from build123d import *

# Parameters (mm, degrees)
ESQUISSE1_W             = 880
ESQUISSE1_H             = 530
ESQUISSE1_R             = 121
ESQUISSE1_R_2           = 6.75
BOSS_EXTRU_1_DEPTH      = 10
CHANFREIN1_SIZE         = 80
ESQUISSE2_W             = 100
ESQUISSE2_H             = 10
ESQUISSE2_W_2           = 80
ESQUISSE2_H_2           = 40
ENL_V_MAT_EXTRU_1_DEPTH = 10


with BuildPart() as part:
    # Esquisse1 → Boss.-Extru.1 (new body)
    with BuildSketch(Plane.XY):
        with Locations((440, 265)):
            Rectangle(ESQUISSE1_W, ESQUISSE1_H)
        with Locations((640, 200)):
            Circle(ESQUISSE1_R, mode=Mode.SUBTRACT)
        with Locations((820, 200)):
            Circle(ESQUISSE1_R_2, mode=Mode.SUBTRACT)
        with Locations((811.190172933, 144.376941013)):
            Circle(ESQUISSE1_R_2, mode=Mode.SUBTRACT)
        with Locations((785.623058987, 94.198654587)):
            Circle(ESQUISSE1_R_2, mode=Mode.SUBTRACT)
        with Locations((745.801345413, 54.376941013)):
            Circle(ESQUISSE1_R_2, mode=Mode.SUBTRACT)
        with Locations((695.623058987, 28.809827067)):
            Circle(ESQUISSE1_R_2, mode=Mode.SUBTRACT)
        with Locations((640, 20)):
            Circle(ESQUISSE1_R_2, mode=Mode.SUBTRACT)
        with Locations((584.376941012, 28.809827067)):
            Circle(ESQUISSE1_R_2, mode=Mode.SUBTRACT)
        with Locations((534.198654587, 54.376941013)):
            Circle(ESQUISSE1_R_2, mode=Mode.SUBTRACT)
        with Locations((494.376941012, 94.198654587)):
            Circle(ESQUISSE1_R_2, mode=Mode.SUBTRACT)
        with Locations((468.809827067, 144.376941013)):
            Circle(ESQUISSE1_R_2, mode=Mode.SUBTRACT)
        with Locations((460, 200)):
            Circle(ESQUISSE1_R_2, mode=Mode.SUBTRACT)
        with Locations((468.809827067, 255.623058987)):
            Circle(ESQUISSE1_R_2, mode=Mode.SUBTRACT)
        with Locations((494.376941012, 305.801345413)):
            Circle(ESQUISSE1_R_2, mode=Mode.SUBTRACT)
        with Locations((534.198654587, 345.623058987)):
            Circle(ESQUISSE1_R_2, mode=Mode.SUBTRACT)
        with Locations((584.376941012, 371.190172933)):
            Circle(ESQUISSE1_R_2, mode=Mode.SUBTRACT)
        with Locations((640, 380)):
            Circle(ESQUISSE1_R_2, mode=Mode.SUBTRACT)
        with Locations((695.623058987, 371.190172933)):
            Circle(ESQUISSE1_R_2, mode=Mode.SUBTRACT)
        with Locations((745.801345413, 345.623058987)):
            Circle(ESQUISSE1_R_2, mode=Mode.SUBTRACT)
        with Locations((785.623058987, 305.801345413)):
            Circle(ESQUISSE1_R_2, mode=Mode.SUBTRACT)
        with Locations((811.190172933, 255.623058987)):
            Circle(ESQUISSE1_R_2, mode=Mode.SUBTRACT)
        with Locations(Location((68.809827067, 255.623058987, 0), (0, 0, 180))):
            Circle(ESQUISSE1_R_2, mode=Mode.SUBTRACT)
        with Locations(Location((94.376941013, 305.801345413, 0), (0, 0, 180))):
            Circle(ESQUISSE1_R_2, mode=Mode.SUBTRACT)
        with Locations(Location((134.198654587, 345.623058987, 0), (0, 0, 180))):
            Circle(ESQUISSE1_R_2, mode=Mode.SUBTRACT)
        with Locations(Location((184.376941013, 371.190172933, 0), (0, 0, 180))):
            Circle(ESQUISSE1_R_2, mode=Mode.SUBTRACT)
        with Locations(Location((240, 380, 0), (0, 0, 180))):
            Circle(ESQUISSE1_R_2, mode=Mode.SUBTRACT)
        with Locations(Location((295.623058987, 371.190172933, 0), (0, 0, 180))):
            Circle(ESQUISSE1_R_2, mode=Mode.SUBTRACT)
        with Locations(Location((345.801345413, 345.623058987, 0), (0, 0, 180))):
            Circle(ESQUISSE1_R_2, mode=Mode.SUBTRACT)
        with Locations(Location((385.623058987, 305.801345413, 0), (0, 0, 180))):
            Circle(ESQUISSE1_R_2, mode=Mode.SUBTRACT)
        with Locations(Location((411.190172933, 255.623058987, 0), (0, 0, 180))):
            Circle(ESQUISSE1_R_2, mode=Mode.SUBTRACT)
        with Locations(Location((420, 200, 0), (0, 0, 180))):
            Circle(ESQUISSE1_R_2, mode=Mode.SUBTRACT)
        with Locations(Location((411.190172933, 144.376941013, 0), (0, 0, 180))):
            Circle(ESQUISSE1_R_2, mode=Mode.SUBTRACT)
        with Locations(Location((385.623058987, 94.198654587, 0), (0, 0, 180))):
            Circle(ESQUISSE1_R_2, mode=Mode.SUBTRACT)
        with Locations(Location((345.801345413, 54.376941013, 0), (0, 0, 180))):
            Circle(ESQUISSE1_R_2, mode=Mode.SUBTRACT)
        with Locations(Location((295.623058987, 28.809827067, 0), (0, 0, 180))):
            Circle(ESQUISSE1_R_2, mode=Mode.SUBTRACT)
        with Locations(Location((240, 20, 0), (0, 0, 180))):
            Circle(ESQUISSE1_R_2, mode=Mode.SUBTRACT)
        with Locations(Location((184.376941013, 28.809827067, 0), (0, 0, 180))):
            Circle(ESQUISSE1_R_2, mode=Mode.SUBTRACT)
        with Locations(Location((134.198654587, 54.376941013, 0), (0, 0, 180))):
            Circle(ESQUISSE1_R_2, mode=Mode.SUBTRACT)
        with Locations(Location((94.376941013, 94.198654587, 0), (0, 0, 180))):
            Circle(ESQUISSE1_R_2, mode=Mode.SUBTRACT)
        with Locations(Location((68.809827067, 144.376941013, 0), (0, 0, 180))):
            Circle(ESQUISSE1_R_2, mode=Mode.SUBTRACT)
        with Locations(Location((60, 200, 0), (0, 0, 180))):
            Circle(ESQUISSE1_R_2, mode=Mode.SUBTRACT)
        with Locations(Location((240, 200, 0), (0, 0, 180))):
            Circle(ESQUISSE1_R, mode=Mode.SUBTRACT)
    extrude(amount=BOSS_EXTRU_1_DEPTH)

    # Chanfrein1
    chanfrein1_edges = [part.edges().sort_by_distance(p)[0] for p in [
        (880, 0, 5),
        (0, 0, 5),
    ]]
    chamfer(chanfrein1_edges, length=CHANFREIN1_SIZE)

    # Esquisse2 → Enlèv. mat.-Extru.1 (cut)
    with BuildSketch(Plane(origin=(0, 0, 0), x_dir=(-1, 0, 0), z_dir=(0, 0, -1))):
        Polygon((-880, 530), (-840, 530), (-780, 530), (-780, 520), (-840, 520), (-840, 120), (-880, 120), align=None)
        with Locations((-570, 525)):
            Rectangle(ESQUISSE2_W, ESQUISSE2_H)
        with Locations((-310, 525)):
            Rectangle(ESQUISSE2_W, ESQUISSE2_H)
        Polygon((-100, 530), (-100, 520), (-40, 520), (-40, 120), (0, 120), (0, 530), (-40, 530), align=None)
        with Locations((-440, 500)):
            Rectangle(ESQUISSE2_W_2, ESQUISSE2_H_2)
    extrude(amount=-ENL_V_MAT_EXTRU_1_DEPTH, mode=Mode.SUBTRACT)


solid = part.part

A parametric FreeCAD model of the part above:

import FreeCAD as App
import Part
import Sketcher

V = App.Vector


def edges_at(feature, points):
    """Names of the edges that pass closest to the given points."""
    edges = feature.Shape.Edges
    near = lambda p: min(range(len(edges)), key=lambda i: edges[i].distToShape(Part.Vertex(*p))[0])
    return sorted({f"Edge{near(p) + 1}" for p in points})

doc = App.newDocument("Part")
body = doc.addObject("PartDesign::Body", "Body")

sketch1 = body.newObject("Sketcher::SketchObject", "Sketch")
sketch1.AttachmentSupport = (doc.getObject("XY_Plane"), [""])
sketch1.MapMode = "FlatFace"
sketch1.addGeometry(Part.LineSegment(V(0, 530, 0), V(0, 0, 0)), False)
sketch1.addGeometry(Part.LineSegment(V(0, 0, 0), V(880, 0, 0)), False)
sketch1.addGeometry(Part.LineSegment(V(880, 0, 0), V(880, 530, 0)), False)
sketch1.addGeometry(Part.LineSegment(V(880, 530, 0), V(0, 530, 0)), False)
sketch1.addGeometry(Part.Circle(V(134, 54, 0), V(0, 0, 1), 7), False)
sketch1.addGeometry(Part.Circle(V(184, 29, 0), V(0, 0, 1), 7), False)
sketch1.addGeometry(Part.Circle(V(240, 20, 0), V(0, 0, 1), 7), False)
sketch1.addGeometry(Part.Circle(V(94, 94, 0), V(0, 0, 1), 7), False)
sketch1.addGeometry(Part.Circle(V(296, 29, 0), V(0, 0, 1), 7), False)
sketch1.addGeometry(Part.Circle(V(346, 54, 0), V(0, 0, 1), 7), False)
sketch1.addGeometry(Part.Circle(V(386, 94, 0), V(0, 0, 1), 7), False)
sketch1.addGeometry(Part.Circle(V(69, 144, 0), V(0, 0, 1), 7), False)
sketch1.addGeometry(Part.Circle(V(411, 144, 0), V(0, 0, 1), 7), False)
sketch1.addGeometry(Part.Circle(V(534, 54, 0), V(0, 0, 1), 7), False)
sketch1.addGeometry(Part.Circle(V(584, 29, 0), V(0, 0, 1), 7), False)
sketch1.addGeometry(Part.Circle(V(494, 94, 0), V(0, 0, 1), 7), False)
sketch1.addGeometry(Part.Circle(V(640, 20, 0), V(0, 0, 1), 7), False)
sketch1.addGeometry(Part.Circle(V(696, 29, 0), V(0, 0, 1), 7), False)
sketch1.addGeometry(Part.Circle(V(746, 54, 0), V(0, 0, 1), 7), False)
sketch1.addGeometry(Part.Circle(V(786, 94, 0), V(0, 0, 1), 7), False)
sketch1.addGeometry(Part.Circle(V(469, 144, 0), V(0, 0, 1), 7), False)
sketch1.addGeometry(Part.Circle(V(811, 144, 0), V(0, 0, 1), 7), False)
sketch1.addGeometry(Part.Circle(V(60, 200, 0), V(0, 0, 1), 7), False)
sketch1.addGeometry(Part.Circle(V(240, 200, 0), V(0, 0, 1), 121), False)
sketch1.addGeometry(Part.Circle(V(69, 256, 0), V(0, 0, 1), 7), False)
sketch1.addGeometry(Part.Circle(V(420, 200, 0), V(0, 0, 1), 7), False)
sketch1.addGeometry(Part.Circle(V(411, 256, 0), V(0, 0, 1), 7), False)
sketch1.addGeometry(Part.Circle(V(94, 306, 0), V(0, 0, 1), 7), False)
sketch1.addGeometry(Part.Circle(V(134, 346, 0), V(0, 0, 1), 7), False)
sketch1.addGeometry(Part.Circle(V(184, 371, 0), V(0, 0, 1), 7), False)
sketch1.addGeometry(Part.Circle(V(240, 380, 0), V(0, 0, 1), 7), False)
sketch1.addGeometry(Part.Circle(V(386, 306, 0), V(0, 0, 1), 7), False)
sketch1.addGeometry(Part.Circle(V(296, 371, 0), V(0, 0, 1), 7), False)
sketch1.addGeometry(Part.Circle(V(346, 346, 0), V(0, 0, 1), 7), False)
sketch1.addGeometry(Part.Circle(V(460, 200, 0), V(0, 0, 1), 7), False)
sketch1.addGeometry(Part.Circle(V(469, 256, 0), V(0, 0, 1), 7), False)
sketch1.addGeometry(Part.Circle(V(640, 200, 0), V(0, 0, 1), 121), False)
sketch1.addGeometry(Part.Circle(V(820, 200, 0), V(0, 0, 1), 7), False)
sketch1.addGeometry(Part.Circle(V(811, 256, 0), V(0, 0, 1), 7), False)
sketch1.addGeometry(Part.Circle(V(494, 306, 0), V(0, 0, 1), 7), False)
sketch1.addGeometry(Part.Circle(V(534, 346, 0), V(0, 0, 1), 7), False)
sketch1.addGeometry(Part.Circle(V(584, 371, 0), V(0, 0, 1), 7), False)
sketch1.addGeometry(Part.Circle(V(786, 306, 0), V(0, 0, 1), 7), False)
sketch1.addGeometry(Part.Circle(V(640, 380, 0), V(0, 0, 1), 7), False)
sketch1.addGeometry(Part.Circle(V(696, 371, 0), V(0, 0, 1), 7), False)
sketch1.addGeometry(Part.Circle(V(746, 346, 0), V(0, 0, 1), 7), False)
sketch1.addConstraint(Sketcher.Constraint("Coincident", 0, 2, 1, 1))
sketch1.addConstraint(Sketcher.Constraint("Coincident", 1, 2, 2, 1))
sketch1.addConstraint(Sketcher.Constraint("Coincident", 2, 2, 3, 1))
sketch1.addConstraint(Sketcher.Constraint("Coincident", 3, 2, 0, 1))
sketch1.addConstraint(Sketcher.Constraint("Vertical", 0))
sketch1.addConstraint(Sketcher.Constraint("Horizontal", 1))
sketch1.addConstraint(Sketcher.Constraint("Vertical", 2))
sketch1.addConstraint(Sketcher.Constraint("Horizontal", 3))
sketch1.addConstraint(Sketcher.Constraint("Coincident", 0, 2, -1, 1))
sketch1.addConstraint(Sketcher.Constraint("Equal", 4, 5))
sketch1.addConstraint(Sketcher.Constraint("Equal", 5, 6))
sketch1.addConstraint(Sketcher.Constraint("Equal", 6, 7))
sketch1.addConstraint(Sketcher.Constraint("Equal", 7, 8))
sketch1.addConstraint(Sketcher.Constraint("Equal", 8, 9))
sketch1.addConstraint(Sketcher.Constraint("Equal", 9, 10))
sketch1.addConstraint(Sketcher.Constraint("Equal", 10, 11))
sketch1.addConstraint(Sketcher.Constraint("Equal", 11, 12))
sketch1.addConstraint(Sketcher.Constraint("Equal", 12, 13))
sketch1.addConstraint(Sketcher.Constraint("Equal", 13, 14))
sketch1.addConstraint(Sketcher.Constraint("Equal", 14, 15))
sketch1.addConstraint(Sketcher.Constraint("Equal", 15, 16))
sketch1.addConstraint(Sketcher.Constraint("Equal", 16, 17))
sketch1.addConstraint(Sketcher.Constraint("Equal", 17, 18))
sketch1.addConstraint(Sketcher.Constraint("Equal", 18, 19))
sketch1.addConstraint(Sketcher.Constraint("Equal", 19, 20))
sketch1.addConstraint(Sketcher.Constraint("Equal", 20, 21))
sketch1.addConstraint(Sketcher.Constraint("Equal", 21, 22))
sketch1.addConstraint(Sketcher.Constraint("Equal", 22, 24))
sketch1.addConstraint(Sketcher.Constraint("Equal", 24, 25))
sketch1.addConstraint(Sketcher.Constraint("Equal", 25, 26))
sketch1.addConstraint(Sketcher.Constraint("Equal", 26, 27))
sketch1.addConstraint(Sketcher.Constraint("Equal", 27, 28))
sketch1.addConstraint(Sketcher.Constraint("Equal", 28, 29))
sketch1.addConstraint(Sketcher.Constraint("Equal", 29, 30))
sketch1.addConstraint(Sketcher.Constraint("Equal", 30, 31))
sketch1.addConstraint(Sketcher.Constraint("Equal", 31, 32))
sketch1.addConstraint(Sketcher.Constraint("Equal", 32, 33))
sketch1.addConstraint(Sketcher.Constraint("Equal", 33, 34))
sketch1.addConstraint(Sketcher.Constraint("Equal", 34, 35))
sketch1.addConstraint(Sketcher.Constraint("Equal", 23, 36))
sketch1.addConstraint(Sketcher.Constraint("Equal", 35, 37))
sketch1.addConstraint(Sketcher.Constraint("Equal", 37, 38))
sketch1.addConstraint(Sketcher.Constraint("Equal", 38, 39))
sketch1.addConstraint(Sketcher.Constraint("Equal", 39, 40))
sketch1.addConstraint(Sketcher.Constraint("Equal", 40, 41))
sketch1.addConstraint(Sketcher.Constraint("Equal", 41, 42))
sketch1.addConstraint(Sketcher.Constraint("Equal", 42, 43))
sketch1.addConstraint(Sketcher.Constraint("Equal", 43, 44))
sketch1.addConstraint(Sketcher.Constraint("Equal", 44, 45))
sketch1.addConstraint(Sketcher.Constraint("Horizontal", 5, 3, 8, 3))
sketch1.addConstraint(Sketcher.Constraint("Horizontal", 4, 3, 9, 3))
sketch1.addConstraint(Sketcher.Constraint("Horizontal", 7, 3, 10, 3))
sketch1.addConstraint(Sketcher.Constraint("Horizontal", 11, 3, 12, 3))
sketch1.addConstraint(Sketcher.Constraint("Horizontal", 9, 3, 13, 3))
sketch1.addConstraint(Sketcher.Constraint("Horizontal", 8, 3, 14, 3))
sketch1.addConstraint(Sketcher.Constraint("Horizontal", 10, 3, 15, 3))
sketch1.addConstraint(Sketcher.Constraint("Horizontal", 6, 3, 16, 3))
sketch1.addConstraint(Sketcher.Constraint("Horizontal", 14, 3, 17, 3))
sketch1.addConstraint(Sketcher.Constraint("Horizontal", 13, 3, 18, 3))
sketch1.addConstraint(Sketcher.Constraint("Horizontal", 15, 3, 19, 3))
sketch1.addConstraint(Sketcher.Constraint("Horizontal", 12, 3, 20, 3))
sketch1.addConstraint(Sketcher.Constraint("Horizontal", 20, 3, 21, 3))
sketch1.addConstraint(Sketcher.Constraint("Horizontal", 22, 3, 23, 3))
sketch1.addConstraint(Sketcher.Constraint("Horizontal", 23, 3, 25, 3))
sketch1.addConstraint(Sketcher.Constraint("Horizontal", 24, 3, 26, 3))
sketch1.addConstraint(Sketcher.Constraint("Horizontal", 27, 3, 31, 3))
sketch1.addConstraint(Sketcher.Constraint("Horizontal", 29, 3, 32, 3))
sketch1.addConstraint(Sketcher.Constraint("Horizontal", 28, 3, 33, 3))
sketch1.addConstraint(Sketcher.Constraint("Horizontal", 25, 3, 34, 3))
sketch1.addConstraint(Sketcher.Constraint("Horizontal", 26, 3, 35, 3))
sketch1.addConstraint(Sketcher.Constraint("Horizontal", 34, 3, 36, 3))
sketch1.addConstraint(Sketcher.Constraint("Horizontal", 36, 3, 37, 3))
sketch1.addConstraint(Sketcher.Constraint("Horizontal", 35, 3, 38, 3))
sketch1.addConstraint(Sketcher.Constraint("Horizontal", 31, 3, 39, 3))
sketch1.addConstraint(Sketcher.Constraint("Horizontal", 33, 3, 40, 3))
sketch1.addConstraint(Sketcher.Constraint("Horizontal", 32, 3, 41, 3))
sketch1.addConstraint(Sketcher.Constraint("Horizontal", 39, 3, 42, 3))
sketch1.addConstraint(Sketcher.Constraint("Horizontal", 30, 3, 43, 3))
sketch1.addConstraint(Sketcher.Constraint("Horizontal", 41, 3, 44, 3))
sketch1.addConstraint(Sketcher.Constraint("Horizontal", 40, 3, 45, 3))
sketch1.addConstraint(Sketcher.Constraint("Vertical", 6, 3, 23, 3))
sketch1.addConstraint(Sketcher.Constraint("Vertical", 11, 3, 24, 3))
sketch1.addConstraint(Sketcher.Constraint("Vertical", 12, 3, 26, 3))
sketch1.addConstraint(Sketcher.Constraint("Vertical", 7, 3, 27, 3))
sketch1.addConstraint(Sketcher.Constraint("Vertical", 4, 3, 28, 3))
sketch1.addConstraint(Sketcher.Constraint("Vertical", 5, 3, 29, 3))
sketch1.addConstraint(Sketcher.Constraint("Vertical", 23, 3, 30, 3))
sketch1.addConstraint(Sketcher.Constraint("Vertical", 10, 3, 31, 3))
sketch1.addConstraint(Sketcher.Constraint("Vertical", 8, 3, 32, 3))
sketch1.addConstraint(Sketcher.Constraint("Vertical", 9, 3, 33, 3))
sketch1.addConstraint(Sketcher.Constraint("Vertical", 20, 3, 35, 3))
sketch1.addConstraint(Sketcher.Constraint("Vertical", 16, 3, 36, 3))
sketch1.addConstraint(Sketcher.Constraint("Vertical", 21, 3, 38, 3))
sketch1.addConstraint(Sketcher.Constraint("Vertical", 15, 3, 39, 3))
sketch1.addConstraint(Sketcher.Constraint("Vertical", 13, 3, 40, 3))
sketch1.addConstraint(Sketcher.Constraint("Vertical", 14, 3, 41, 3))
sketch1.addConstraint(Sketcher.Constraint("Vertical", 19, 3, 42, 3))
sketch1.addConstraint(Sketcher.Constraint("Vertical", 36, 3, 43, 3))
sketch1.addConstraint(Sketcher.Constraint("Vertical", 17, 3, 44, 3))
sketch1.addConstraint(Sketcher.Constraint("Vertical", 18, 3, 45, 3))
sketch1.addConstraint(Sketcher.Constraint("Diameter", 23, 242.0))
sketch1.addConstraint(Sketcher.Constraint("Diameter", 4, 13.5))
sketch1.addConstraint(Sketcher.Constraint("DistanceX", 1, 1, 1, 2, 880.0))
sketch1.addConstraint(Sketcher.Constraint("DistanceY", 0, 2, 0, 1, 530.0))
sketch1.addConstraint(Sketcher.Constraint("DistanceX", -1, 1, 6, 3, 240.0))
sketch1.addConstraint(Sketcher.Constraint("DistanceY", -1, 1, 6, 3, 20.0))
sketch1.addConstraint(Sketcher.Constraint("DistanceX", -1, 1, 16, 3, 640.0))
sketch1.addConstraint(Sketcher.Constraint("DistanceX", -1, 1, 22, 3, 60.0))
sketch1.addConstraint(Sketcher.Constraint("DistanceY", -1, 1, 22, 3, 200.0))
sketch1.addConstraint(Sketcher.Constraint("DistanceX", -1, 1, 25, 3, 420.0))
sketch1.addConstraint(Sketcher.Constraint("DistanceY", -1, 1, 30, 3, 380.0))
sketch1.addConstraint(Sketcher.Constraint("DistanceX", -1, 1, 34, 3, 460.0))
sketch1.addConstraint(Sketcher.Constraint("DistanceX", -1, 1, 37, 3, 820.0))
sketch1.addConstraint(Sketcher.Constraint("DistanceX", 7, 3, 5, 3, 90.0))
sketch1.addConstraint(Sketcher.Constraint("DistanceX", 8, 3, 10, 3, 90.0))
sketch1.addConstraint(Sketcher.Constraint("DistanceY", 4, 3, 11, 3, 90.0))
sketch1.addConstraint(Sketcher.Constraint("DistanceX", 15, 3, 14, 3, 90.0))
sketch1.addConstraint(Sketcher.Constraint("DistanceX", 17, 3, 19, 3, 90.0))
sketch1.addConstraint(Sketcher.Constraint("DistanceY", 24, 3, 28, 3, 90.0))
sketch1.addConstraint(Sketcher.Constraint("DistanceY", -1, 1, 4, 3, 54.376941))
sketch1.addConstraint(Sketcher.Constraint("DistanceX", -1, 1, 5, 3, 184.376941))
sketch1.addConstraint(Sketcher.Constraint("DistanceX", -1, 1, 8, 3, 295.623059))
sketch1.addConstraint(Sketcher.Constraint("DistanceX", -1, 1, 14, 3, 584.376941))
sketch1.addConstraint(Sketcher.Constraint("DistanceX", -1, 1, 17, 3, 695.623059))
sketch1.addConstraint(Sketcher.Constraint("DistanceY", -1, 1, 24, 3, 255.623059))
sketch1.addConstraint(Sketcher.Constraint("DistanceX", 4, 3, 9, 3, 211.602691))
sketch1.addConstraint(Sketcher.Constraint("DistanceX", 11, 3, 8, 3, 226.813232))
sketch1.addConstraint(Sketcher.Constraint("DistanceX", 5, 3, 12, 3, 226.813232))
sketch1.addConstraint(Sketcher.Constraint("DistanceX", 12, 3, 13, 3, 123.008482))
sketch1.addConstraint(Sketcher.Constraint("DistanceX", 9, 3, 13, 3, 188.397309))
sketch1.addConstraint(Sketcher.Constraint("DistanceX", 13, 3, 18, 3, 211.602691))
sketch1.addConstraint(Sketcher.Constraint("DistanceX", 10, 3, 20, 3, 83.186768))
sketch1.addConstraint(Sketcher.Constraint("DistanceX", 14, 3, 21, 3, 226.813232))
sketch1.addConstraint(Sketcher.Constraint("DistanceY", 7, 3, 27, 3, 211.602691))
sketch1.addConstraint(Sketcher.Constraint("DistanceY", -1, 1, 5, 3, 28.809827))
sketch1.addConstraint(Sketcher.Constraint("DistanceY", -1, 1, 7, 3, 94.198655))
sketch1.addConstraint(Sketcher.Constraint("DistanceY", -1, 1, 29, 3, 371.190173))
pad1 = body.newObject("PartDesign::Pad", "Pad")
pad1.Profile = sketch1
pad1.Length = 10
doc.recompute()

chamfer = body.newObject("PartDesign::Chamfer", "Chamfer")
chamfer.Base = (pad1, edges_at(pad1, [(880, 0, 5), (0, 0, 5)]))
chamfer.Size = 80

sketch2 = body.newObject("Sketcher::SketchObject", "Sketch001")
sketch2.AttachmentSupport = (doc.getObject("XY_Plane"), [""])
sketch2.MapMode = "FlatFace"
sketch2.addGeometry(Part.LineSegment(V(780, 530, 0), V(880, 530, 0)), False)
sketch2.addGeometry(Part.LineSegment(V(880, 530, 0), V(880, 120, 0)), False)
sketch2.addGeometry(Part.LineSegment(V(880, 120, 0), V(840, 120, 0)), False)
sketch2.addGeometry(Part.LineSegment(V(840, 120, 0), V(840, 520, 0)), False)
sketch2.addGeometry(Part.LineSegment(V(840, 520, 0), V(780, 520, 0)), False)
sketch2.addGeometry(Part.LineSegment(V(780, 520, 0), V(780, 530, 0)), False)
sketch2.addGeometry(Part.LineSegment(V(620, 530, 0), V(620, 520, 0)), False)
sketch2.addGeometry(Part.LineSegment(V(620, 520, 0), V(520, 520, 0)), False)
sketch2.addGeometry(Part.LineSegment(V(520, 520, 0), V(520, 530, 0)), False)
sketch2.addGeometry(Part.LineSegment(V(520, 530, 0), V(620, 530, 0)), False)
sketch2.addGeometry(Part.LineSegment(V(360, 530, 0), V(360, 520, 0)), False)
sketch2.addGeometry(Part.LineSegment(V(360, 520, 0), V(260, 520, 0)), False)
sketch2.addGeometry(Part.LineSegment(V(260, 520, 0), V(260, 530, 0)), False)
sketch2.addGeometry(Part.LineSegment(V(260, 530, 0), V(360, 530, 0)), False)
sketch2.addGeometry(Part.LineSegment(V(100, 530, 0), V(100, 520, 0)), False)
sketch2.addGeometry(Part.LineSegment(V(100, 520, 0), V(40, 520, 0)), False)
sketch2.addGeometry(Part.LineSegment(V(40, 520, 0), V(40, 120, 0)), False)
sketch2.addGeometry(Part.LineSegment(V(40, 120, 0), V(0, 120, 0)), False)
sketch2.addGeometry(Part.LineSegment(V(0, 120, 0), V(0, 530, 0)), False)
sketch2.addGeometry(Part.LineSegment(V(0, 530, 0), V(100, 530, 0)), False)
sketch2.addGeometry(Part.LineSegment(V(480, 520, 0), V(480, 480, 0)), False)
sketch2.addGeometry(Part.LineSegment(V(480, 480, 0), V(400, 480, 0)), False)
sketch2.addGeometry(Part.LineSegment(V(400, 480, 0), V(400, 520, 0)), False)
sketch2.addGeometry(Part.LineSegment(V(400, 520, 0), V(480, 520, 0)), False)
sketch2.addConstraint(Sketcher.Constraint("Coincident", 0, 2, 1, 1))
sketch2.addConstraint(Sketcher.Constraint("Coincident", 1, 2, 2, 1))
sketch2.addConstraint(Sketcher.Constraint("Coincident", 2, 2, 3, 1))
sketch2.addConstraint(Sketcher.Constraint("Coincident", 3, 2, 4, 1))
sketch2.addConstraint(Sketcher.Constraint("Coincident", 4, 2, 5, 1))
sketch2.addConstraint(Sketcher.Constraint("Coincident", 5, 2, 0, 1))
sketch2.addConstraint(Sketcher.Constraint("Coincident", 6, 2, 7, 1))
sketch2.addConstraint(Sketcher.Constraint("Coincident", 7, 2, 8, 1))
sketch2.addConstraint(Sketcher.Constraint("Coincident", 8, 2, 9, 1))
sketch2.addConstraint(Sketcher.Constraint("Coincident", 9, 2, 6, 1))
sketch2.addConstraint(Sketcher.Constraint("Coincident", 10, 2, 11, 1))
sketch2.addConstraint(Sketcher.Constraint("Coincident", 11, 2, 12, 1))
sketch2.addConstraint(Sketcher.Constraint("Coincident", 12, 2, 13, 1))
sketch2.addConstraint(Sketcher.Constraint("Coincident", 13, 2, 10, 1))
sketch2.addConstraint(Sketcher.Constraint("Coincident", 14, 2, 15, 1))
sketch2.addConstraint(Sketcher.Constraint("Coincident", 15, 2, 16, 1))
sketch2.addConstraint(Sketcher.Constraint("Coincident", 16, 2, 17, 1))
sketch2.addConstraint(Sketcher.Constraint("Coincident", 17, 2, 18, 1))
sketch2.addConstraint(Sketcher.Constraint("Coincident", 18, 2, 19, 1))
sketch2.addConstraint(Sketcher.Constraint("Coincident", 19, 2, 14, 1))
sketch2.addConstraint(Sketcher.Constraint("Coincident", 20, 2, 21, 1))
sketch2.addConstraint(Sketcher.Constraint("Coincident", 21, 2, 22, 1))
sketch2.addConstraint(Sketcher.Constraint("Coincident", 22, 2, 23, 1))
sketch2.addConstraint(Sketcher.Constraint("Coincident", 23, 2, 20, 1))
sketch2.addConstraint(Sketcher.Constraint("Horizontal", 0))
sketch2.addConstraint(Sketcher.Constraint("Vertical", 1))
sketch2.addConstraint(Sketcher.Constraint("Horizontal", 2))
sketch2.addConstraint(Sketcher.Constraint("Vertical", 3))
sketch2.addConstraint(Sketcher.Constraint("Horizontal", 4))
sketch2.addConstraint(Sketcher.Constraint("Vertical", 5))
sketch2.addConstraint(Sketcher.Constraint("Vertical", 6))
sketch2.addConstraint(Sketcher.Constraint("Horizontal", 7))
sketch2.addConstraint(Sketcher.Constraint("Vertical", 8))
sketch2.addConstraint(Sketcher.Constraint("Horizontal", 9))
sketch2.addConstraint(Sketcher.Constraint("Vertical", 10))
sketch2.addConstraint(Sketcher.Constraint("Horizontal", 11))
sketch2.addConstraint(Sketcher.Constraint("Vertical", 12))
sketch2.addConstraint(Sketcher.Constraint("Horizontal", 13))
sketch2.addConstraint(Sketcher.Constraint("Vertical", 14))
sketch2.addConstraint(Sketcher.Constraint("Horizontal", 15))
sketch2.addConstraint(Sketcher.Constraint("Vertical", 16))
sketch2.addConstraint(Sketcher.Constraint("Horizontal", 17))
sketch2.addConstraint(Sketcher.Constraint("Vertical", 18))
sketch2.addConstraint(Sketcher.Constraint("Horizontal", 19))
sketch2.addConstraint(Sketcher.Constraint("Vertical", 20))
sketch2.addConstraint(Sketcher.Constraint("Horizontal", 21))
sketch2.addConstraint(Sketcher.Constraint("Vertical", 22))
sketch2.addConstraint(Sketcher.Constraint("Horizontal", 23))
sketch2.addConstraint(Sketcher.Constraint("PointOnObject", 17, 2, -2))
sketch2.addConstraint(Sketcher.Constraint("Horizontal", 4, 2, 6, 2))
sketch2.addConstraint(Sketcher.Constraint("Horizontal", 5, 2, 8, 2))
sketch2.addConstraint(Sketcher.Constraint("Horizontal", 7, 2, 10, 2))
sketch2.addConstraint(Sketcher.Constraint("Horizontal", 9, 2, 12, 2))
sketch2.addConstraint(Sketcher.Constraint("Horizontal", 11, 2, 14, 2))
sketch2.addConstraint(Sketcher.Constraint("Horizontal", 2, 2, 16, 2))
sketch2.addConstraint(Sketcher.Constraint("Horizontal", 13, 2, 18, 2))
sketch2.addConstraint(Sketcher.Constraint("Horizontal", 15, 2, 22, 2))
sketch2.addConstraint(Sketcher.Constraint("Equal", 0, 7))
sketch2.addConstraint(Sketcher.Constraint("Equal", 9, 11))
sketch2.addConstraint(Sketcher.Constraint("Equal", 4, 15))
sketch2.addConstraint(Sketcher.Constraint("Equal", 2, 17))
sketch2.addConstraint(Sketcher.Constraint("Equal", 17, 20))
sketch2.addConstraint(Sketcher.Constraint("DistanceX", 0, 1, 0, 2, 100.0))
sketch2.addConstraint(Sketcher.Constraint("DistanceX", 2, 2, 2, 1, 40.0))
sketch2.addConstraint(Sketcher.Constraint("DistanceX", 21, 2, 21, 1, 80.0))
sketch2.addConstraint(Sketcher.Constraint("DistanceY", 1, 2, 1, 1, 410.0))
sketch2.addConstraint(Sketcher.Constraint("DistanceY", 3, 1, 3, 2, 400.0))
sketch2.addConstraint(Sketcher.Constraint("DistanceX", -1, 1, 0, 2, 880.0))
sketch2.addConstraint(Sketcher.Constraint("DistanceY", -1, 1, 0, 2, 530.0))
sketch2.addConstraint(Sketcher.Constraint("DistanceX", -1, 1, 6, 2, 620.0))
sketch2.addConstraint(Sketcher.Constraint("DistanceX", -1, 1, 10, 2, 360.0))
sketch2.addConstraint(Sketcher.Constraint("DistanceX", -1, 1, 20, 2, 480.0))
pocket1 = body.newObject("PartDesign::Pocket", "Pocket")
pocket1.Profile = sketch2
pocket1.Length = 10
pocket1.Reversed = True

doc.recompute()
